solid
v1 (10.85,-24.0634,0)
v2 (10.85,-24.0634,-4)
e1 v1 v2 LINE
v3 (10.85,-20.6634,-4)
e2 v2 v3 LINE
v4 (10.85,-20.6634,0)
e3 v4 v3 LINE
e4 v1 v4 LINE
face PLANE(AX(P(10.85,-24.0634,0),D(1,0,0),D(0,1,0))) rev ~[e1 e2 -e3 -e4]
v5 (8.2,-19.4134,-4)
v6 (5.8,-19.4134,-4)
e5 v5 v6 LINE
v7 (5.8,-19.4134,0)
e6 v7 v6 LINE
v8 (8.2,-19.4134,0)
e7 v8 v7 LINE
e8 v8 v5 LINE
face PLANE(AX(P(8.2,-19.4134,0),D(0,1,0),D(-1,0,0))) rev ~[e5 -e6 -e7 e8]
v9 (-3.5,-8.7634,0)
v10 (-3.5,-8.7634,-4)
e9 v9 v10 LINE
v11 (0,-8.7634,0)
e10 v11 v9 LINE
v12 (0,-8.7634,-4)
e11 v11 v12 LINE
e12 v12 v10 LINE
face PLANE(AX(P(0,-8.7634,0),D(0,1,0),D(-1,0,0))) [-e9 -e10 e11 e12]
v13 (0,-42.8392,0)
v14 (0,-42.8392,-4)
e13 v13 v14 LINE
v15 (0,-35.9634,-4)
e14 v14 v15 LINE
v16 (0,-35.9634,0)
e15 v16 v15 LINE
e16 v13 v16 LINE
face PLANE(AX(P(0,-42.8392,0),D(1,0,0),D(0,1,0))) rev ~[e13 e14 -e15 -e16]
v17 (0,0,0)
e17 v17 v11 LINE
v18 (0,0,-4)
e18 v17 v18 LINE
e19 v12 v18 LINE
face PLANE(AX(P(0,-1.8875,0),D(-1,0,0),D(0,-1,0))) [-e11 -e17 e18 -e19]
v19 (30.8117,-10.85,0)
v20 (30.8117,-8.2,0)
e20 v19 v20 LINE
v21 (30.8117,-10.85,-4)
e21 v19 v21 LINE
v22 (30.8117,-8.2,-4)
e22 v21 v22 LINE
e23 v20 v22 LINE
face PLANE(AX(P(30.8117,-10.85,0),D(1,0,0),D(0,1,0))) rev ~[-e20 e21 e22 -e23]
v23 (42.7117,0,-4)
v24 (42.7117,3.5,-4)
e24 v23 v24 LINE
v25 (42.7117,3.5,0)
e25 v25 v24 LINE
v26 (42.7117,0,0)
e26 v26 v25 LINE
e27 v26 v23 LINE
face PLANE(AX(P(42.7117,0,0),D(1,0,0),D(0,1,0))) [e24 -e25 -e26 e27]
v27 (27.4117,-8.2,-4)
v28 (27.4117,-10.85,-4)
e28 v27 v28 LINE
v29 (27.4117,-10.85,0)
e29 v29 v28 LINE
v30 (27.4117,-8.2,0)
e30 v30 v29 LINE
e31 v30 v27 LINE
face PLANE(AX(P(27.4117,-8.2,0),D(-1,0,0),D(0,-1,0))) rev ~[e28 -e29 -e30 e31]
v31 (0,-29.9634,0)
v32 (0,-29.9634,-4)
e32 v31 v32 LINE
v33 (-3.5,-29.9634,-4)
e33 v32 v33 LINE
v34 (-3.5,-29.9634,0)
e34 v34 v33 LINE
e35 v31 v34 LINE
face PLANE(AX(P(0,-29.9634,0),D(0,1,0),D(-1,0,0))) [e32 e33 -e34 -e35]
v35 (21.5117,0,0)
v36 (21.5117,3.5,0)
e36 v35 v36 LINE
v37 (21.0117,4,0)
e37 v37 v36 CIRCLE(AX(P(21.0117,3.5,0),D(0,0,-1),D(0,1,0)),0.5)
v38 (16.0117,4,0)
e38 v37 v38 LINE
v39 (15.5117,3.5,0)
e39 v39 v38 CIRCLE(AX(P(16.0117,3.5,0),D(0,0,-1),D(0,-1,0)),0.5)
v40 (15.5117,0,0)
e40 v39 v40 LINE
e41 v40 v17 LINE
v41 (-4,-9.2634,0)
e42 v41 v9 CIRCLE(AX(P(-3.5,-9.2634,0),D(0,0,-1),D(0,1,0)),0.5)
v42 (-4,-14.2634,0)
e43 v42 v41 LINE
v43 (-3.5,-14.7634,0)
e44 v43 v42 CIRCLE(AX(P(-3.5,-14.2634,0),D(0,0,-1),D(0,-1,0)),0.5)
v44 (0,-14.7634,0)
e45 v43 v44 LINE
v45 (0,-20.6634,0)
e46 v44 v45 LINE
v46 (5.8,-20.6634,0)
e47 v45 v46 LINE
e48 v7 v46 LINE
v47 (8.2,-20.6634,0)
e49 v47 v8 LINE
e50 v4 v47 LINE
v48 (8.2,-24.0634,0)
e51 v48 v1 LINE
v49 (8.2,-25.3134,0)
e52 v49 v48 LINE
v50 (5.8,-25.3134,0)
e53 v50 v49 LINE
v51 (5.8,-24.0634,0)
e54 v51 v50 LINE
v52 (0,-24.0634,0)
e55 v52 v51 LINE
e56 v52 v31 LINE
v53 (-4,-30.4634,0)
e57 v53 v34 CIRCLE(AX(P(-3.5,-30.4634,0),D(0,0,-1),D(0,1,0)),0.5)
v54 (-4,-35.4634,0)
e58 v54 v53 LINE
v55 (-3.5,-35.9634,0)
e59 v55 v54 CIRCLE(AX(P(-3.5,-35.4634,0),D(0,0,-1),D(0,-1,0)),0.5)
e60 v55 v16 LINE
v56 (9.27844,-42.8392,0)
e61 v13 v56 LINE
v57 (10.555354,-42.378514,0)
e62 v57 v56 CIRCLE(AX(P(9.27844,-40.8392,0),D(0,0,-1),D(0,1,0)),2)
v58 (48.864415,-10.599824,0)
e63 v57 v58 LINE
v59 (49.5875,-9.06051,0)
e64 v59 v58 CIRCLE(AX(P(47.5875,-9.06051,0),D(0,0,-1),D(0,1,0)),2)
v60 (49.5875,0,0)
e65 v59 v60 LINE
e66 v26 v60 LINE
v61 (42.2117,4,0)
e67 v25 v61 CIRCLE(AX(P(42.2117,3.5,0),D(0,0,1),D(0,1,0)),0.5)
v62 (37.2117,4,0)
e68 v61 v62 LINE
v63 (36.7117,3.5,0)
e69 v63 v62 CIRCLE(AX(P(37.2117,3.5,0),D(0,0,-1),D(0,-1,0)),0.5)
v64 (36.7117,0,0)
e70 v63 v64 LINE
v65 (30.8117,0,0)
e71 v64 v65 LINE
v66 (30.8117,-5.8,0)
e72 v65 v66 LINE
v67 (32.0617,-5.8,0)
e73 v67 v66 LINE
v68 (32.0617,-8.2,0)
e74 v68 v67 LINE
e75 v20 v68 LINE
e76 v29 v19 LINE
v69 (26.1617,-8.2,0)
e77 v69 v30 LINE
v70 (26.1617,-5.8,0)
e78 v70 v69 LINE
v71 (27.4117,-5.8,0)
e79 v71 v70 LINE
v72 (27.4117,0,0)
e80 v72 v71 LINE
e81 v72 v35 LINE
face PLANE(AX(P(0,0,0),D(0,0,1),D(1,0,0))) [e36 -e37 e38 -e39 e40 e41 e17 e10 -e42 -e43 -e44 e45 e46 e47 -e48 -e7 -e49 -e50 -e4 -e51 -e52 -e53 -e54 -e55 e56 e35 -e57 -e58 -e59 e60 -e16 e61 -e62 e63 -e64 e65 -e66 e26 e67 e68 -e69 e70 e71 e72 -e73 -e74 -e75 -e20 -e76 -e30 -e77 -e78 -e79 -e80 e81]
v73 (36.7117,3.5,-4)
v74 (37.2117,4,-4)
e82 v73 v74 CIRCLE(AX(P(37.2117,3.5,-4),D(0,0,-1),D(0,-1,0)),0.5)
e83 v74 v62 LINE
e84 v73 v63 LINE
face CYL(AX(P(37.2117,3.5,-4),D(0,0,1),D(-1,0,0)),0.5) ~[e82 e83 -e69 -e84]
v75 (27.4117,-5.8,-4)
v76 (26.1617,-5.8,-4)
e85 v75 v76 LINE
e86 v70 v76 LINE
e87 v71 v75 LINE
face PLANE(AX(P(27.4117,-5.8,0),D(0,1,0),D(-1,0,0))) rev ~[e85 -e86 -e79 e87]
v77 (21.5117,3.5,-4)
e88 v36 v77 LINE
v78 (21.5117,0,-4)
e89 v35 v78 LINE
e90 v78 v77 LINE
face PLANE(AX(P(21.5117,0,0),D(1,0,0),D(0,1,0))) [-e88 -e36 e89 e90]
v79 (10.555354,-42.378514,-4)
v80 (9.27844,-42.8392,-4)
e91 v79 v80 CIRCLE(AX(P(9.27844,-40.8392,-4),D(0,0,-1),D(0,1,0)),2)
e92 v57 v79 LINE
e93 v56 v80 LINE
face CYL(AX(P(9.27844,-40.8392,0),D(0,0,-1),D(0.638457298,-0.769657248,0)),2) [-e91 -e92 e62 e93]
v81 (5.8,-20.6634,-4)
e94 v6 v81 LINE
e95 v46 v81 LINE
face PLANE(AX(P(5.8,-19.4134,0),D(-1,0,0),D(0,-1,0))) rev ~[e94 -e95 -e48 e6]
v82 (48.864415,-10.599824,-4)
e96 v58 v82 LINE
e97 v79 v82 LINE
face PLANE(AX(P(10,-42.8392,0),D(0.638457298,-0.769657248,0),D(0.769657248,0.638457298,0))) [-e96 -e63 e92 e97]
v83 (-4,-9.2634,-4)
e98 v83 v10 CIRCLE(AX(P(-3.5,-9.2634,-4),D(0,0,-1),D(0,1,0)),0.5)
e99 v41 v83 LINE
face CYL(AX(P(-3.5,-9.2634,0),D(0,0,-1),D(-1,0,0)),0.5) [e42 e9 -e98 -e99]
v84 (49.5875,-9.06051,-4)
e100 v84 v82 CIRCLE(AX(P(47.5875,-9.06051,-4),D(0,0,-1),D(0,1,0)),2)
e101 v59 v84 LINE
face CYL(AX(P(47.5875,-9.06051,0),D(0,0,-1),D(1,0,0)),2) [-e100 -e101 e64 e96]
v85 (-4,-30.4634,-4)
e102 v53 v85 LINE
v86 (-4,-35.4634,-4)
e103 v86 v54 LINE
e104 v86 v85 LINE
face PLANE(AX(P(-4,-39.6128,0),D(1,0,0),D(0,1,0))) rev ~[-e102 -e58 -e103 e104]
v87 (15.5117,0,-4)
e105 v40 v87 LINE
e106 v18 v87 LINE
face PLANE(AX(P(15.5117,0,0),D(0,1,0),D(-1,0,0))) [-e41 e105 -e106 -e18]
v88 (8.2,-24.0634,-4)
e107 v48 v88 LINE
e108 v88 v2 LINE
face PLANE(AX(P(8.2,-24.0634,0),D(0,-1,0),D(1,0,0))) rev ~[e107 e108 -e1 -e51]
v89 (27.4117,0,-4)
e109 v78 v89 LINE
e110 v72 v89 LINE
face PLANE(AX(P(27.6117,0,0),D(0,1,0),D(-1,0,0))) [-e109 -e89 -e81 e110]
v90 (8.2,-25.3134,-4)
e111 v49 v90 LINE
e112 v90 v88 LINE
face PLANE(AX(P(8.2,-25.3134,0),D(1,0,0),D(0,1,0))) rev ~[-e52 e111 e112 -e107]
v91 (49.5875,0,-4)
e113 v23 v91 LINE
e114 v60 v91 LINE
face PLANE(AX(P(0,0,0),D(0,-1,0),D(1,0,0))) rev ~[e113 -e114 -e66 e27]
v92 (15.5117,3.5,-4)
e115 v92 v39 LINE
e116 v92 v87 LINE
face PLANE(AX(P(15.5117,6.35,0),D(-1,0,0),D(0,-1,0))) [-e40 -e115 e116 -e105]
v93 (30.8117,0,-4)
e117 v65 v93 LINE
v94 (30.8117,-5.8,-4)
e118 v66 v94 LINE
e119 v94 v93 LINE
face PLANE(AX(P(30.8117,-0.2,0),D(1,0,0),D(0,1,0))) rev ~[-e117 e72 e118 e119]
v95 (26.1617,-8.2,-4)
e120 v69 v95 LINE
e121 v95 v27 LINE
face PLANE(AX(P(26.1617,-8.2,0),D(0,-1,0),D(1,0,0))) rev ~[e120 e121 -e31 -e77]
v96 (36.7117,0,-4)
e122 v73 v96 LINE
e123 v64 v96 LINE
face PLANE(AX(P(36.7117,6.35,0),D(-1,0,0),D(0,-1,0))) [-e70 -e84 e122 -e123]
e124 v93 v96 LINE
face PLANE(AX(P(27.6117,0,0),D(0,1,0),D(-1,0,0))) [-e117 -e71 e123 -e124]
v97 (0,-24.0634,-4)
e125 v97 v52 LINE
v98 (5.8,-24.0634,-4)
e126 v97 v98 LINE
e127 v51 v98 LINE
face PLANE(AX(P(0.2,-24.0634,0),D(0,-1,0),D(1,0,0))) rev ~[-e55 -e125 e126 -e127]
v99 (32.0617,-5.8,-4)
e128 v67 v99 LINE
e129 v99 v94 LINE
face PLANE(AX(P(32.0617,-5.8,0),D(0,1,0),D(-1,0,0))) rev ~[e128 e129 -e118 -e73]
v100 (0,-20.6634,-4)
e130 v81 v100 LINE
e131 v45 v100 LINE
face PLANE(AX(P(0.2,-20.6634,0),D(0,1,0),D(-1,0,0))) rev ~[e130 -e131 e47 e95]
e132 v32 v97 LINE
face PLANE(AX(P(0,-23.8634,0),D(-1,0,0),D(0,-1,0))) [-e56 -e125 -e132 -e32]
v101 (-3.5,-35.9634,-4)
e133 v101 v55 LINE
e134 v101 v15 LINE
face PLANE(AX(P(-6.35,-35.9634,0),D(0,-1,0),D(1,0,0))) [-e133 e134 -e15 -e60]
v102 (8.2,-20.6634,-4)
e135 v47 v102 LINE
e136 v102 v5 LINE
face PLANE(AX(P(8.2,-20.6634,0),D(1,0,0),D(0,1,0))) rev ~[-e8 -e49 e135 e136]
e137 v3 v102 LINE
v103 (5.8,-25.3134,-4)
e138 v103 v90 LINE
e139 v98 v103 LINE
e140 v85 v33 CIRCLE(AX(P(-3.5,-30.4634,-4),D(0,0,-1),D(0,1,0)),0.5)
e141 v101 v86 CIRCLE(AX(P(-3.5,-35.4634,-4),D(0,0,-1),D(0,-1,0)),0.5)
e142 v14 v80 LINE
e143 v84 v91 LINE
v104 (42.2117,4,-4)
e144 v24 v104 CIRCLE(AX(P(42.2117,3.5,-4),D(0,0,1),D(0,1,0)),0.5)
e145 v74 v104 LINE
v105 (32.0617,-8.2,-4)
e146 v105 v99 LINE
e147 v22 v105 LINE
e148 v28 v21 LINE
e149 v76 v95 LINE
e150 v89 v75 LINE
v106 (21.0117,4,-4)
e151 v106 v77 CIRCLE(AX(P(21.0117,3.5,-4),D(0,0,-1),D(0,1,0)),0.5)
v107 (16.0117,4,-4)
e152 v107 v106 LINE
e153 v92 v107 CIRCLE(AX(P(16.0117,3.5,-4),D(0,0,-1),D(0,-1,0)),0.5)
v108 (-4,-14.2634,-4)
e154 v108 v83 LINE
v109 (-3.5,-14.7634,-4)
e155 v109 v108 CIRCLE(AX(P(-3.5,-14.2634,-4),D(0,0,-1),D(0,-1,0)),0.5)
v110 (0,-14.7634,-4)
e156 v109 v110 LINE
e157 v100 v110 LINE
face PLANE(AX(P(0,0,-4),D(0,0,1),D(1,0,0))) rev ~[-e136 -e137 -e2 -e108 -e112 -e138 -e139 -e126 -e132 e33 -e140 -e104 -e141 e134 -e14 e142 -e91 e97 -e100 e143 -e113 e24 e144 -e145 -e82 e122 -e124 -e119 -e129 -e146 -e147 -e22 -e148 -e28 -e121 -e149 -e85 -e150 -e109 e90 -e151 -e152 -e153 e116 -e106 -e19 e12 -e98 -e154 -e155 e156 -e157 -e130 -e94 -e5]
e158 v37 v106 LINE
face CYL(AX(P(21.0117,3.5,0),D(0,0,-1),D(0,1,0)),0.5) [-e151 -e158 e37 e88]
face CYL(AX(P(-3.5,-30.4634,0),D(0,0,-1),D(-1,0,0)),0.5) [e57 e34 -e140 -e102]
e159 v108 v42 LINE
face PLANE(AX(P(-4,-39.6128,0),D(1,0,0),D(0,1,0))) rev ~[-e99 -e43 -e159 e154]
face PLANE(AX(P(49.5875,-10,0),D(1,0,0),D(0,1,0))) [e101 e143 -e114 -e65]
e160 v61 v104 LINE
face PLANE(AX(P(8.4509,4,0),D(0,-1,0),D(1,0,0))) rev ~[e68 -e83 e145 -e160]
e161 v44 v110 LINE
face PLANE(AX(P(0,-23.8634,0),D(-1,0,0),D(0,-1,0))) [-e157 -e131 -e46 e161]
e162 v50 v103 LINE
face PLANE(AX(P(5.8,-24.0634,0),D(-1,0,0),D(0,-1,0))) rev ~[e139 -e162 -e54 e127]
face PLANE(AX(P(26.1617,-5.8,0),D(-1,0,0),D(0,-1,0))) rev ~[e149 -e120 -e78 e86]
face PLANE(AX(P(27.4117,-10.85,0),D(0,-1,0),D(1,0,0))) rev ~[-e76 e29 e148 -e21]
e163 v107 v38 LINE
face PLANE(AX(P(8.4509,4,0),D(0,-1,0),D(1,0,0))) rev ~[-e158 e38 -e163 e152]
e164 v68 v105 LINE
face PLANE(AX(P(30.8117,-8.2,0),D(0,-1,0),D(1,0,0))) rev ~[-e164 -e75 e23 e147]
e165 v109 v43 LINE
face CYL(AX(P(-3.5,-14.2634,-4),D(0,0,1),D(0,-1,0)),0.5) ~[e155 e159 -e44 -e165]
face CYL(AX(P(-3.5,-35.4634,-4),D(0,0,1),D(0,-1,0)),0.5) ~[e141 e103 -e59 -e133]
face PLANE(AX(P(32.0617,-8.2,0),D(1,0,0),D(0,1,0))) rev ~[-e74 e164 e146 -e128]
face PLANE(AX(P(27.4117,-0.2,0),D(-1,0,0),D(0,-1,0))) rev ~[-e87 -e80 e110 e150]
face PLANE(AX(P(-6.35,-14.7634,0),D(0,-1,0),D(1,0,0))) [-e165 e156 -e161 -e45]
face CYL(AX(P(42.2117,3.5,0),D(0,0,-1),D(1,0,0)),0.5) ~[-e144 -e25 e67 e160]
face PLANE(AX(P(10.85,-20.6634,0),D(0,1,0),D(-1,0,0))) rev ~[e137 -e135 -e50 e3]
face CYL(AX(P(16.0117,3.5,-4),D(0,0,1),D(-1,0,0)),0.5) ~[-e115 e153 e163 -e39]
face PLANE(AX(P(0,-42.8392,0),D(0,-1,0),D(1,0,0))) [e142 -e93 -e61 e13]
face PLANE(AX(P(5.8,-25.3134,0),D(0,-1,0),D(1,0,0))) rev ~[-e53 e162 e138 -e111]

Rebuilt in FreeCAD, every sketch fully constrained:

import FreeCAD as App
import Part
import Sketcher
Q = App.Units.Quantity


def edges_at(feature, points):
    """Names of the edges that pass closest to the given points."""
    edges = feature.Shape.Edges
    near = lambda p: min(range(len(edges)), key=lambda i: edges[i].distToShape(Part.Vertex(*p))[0])
    return sorted({f"Edge{near(p) + 1}" for p in points})


def add_polygon(sketch, points):
    """Adds a closed chain of lines whose ends are joined by coincident constraints."""
    first, n = sketch.GeometryCount, len(points)
    for a, b in zip(points, points[1:] + points[:1]):
        sketch.addGeometry(Part.LineSegment(App.Vector(*a, 0), App.Vector(*b, 0)), False)
    for i in range(n):
        sketch.addConstraint(Sketcher.Constraint("Coincident", first + i, 2, first + (i + 1) % n, 1))

doc = App.newDocument("Part")
params = doc.addObject("Spreadsheet::Sheet", "Params")
for row, (alias, value) in enumerate([
    ("sketch1_width", "10 mm"),
    ("pad1_length", "4 mm"),
    ("fillet_radius", "2 mm"),
    ("sketch2_width", "6 mm"),
    ("sketch2_width2", "2 mm"),
    ("sketch2_width3", "3 mm"),
    ("sketch2_width4", "6.1 mm"),
    ("sketch2_width5", "6.35 mm"),
    ("pad2_length", "4 mm"),
    ("sketch3_width", "6 mm"),
    ("sketch3_width2", "2 mm"),
    ("sketch3_width3", "3 mm"),
    ("sketch3_width4", "2.65 mm"),
    ("sketch3_width5", "1.25 mm"),
    ("pocket1_length", "4 mm"),
    ("sketch4_width", "6 mm"),
    ("sketch4_width2", "3.4 mm"),
    ("sketch4_width3", "2.4 mm"),
    ("sketch4_height", "5.8 mm"),
    ("sketch4_width4", "1.25 mm"),
    ("pocket2_length", "25.4 mm"),
    ("pocket3_length", "25.4 mm"),
    ("fillet2_radius", "0.5 mm"),
], start=1):
    params.set(f"A{row}", alias)
    params.set(f"B{row}", "=" + value)
    params.setAlias(f"B{row}", alias)

body = doc.addObject("PartDesign::Body", "Body")

# Sketch on XY plane
sketch1 = doc.addObject("Sketcher::SketchObject", "Sketch")
body.addObject(sketch1)
sketch1.AttachmentSupport = (doc.XY_Plane, [""])
sketch1.MapMode = "FlatFace"
add_polygon(sketch1, [(0, 0), (0, -43), (10, -43), (50, -10), (50, 0)])  # lines 0-4
sketch1.addConstraint(Sketcher.Constraint("Vertical", 0))
sketch1.addConstraint(Sketcher.Constraint("Horizontal", 1))
sketch1.addConstraint(Sketcher.Constraint("Vertical", 3))
sketch1.addConstraint(Sketcher.Constraint("Horizontal", 4))
sketch1.addConstraint(Sketcher.Constraint("Coincident", 4, 2, -1, 1))
sketch1.addConstraint(Sketcher.Constraint("Equal", 1, 3))
sketch1.addConstraint(Sketcher.Constraint("DistanceX", 1, 1, 1, 2, Q("10 mm")))
sketch1.addConstraint(Sketcher.Constraint("DistanceX", 4, 2, 4, 1, Q("49.5875 mm")))
sketch1.addConstraint(Sketcher.Constraint("DistanceY", 0, 2, 0, 1, Q("42.8392 mm")))
sketch1.setExpression("Constraints[11]", "Params.sketch1_width")
pad1 = doc.addObject("PartDesign::Pad", "Pad")
body.addObject(pad1)
pad1.Profile = sketch1
pad1.setExpression("Length", "Params.pad1_length")
pad1.Reversed = True
doc.recompute()

fillet = doc.addObject("PartDesign::Fillet", "Fillet")
body.addObject(fillet)
fillet.Base = (pad1, edges_at(pad1, [(49.587, -10, -2), (10, -42.839, -2)]))
fillet.setExpression("Radius", "Params.fillet_radius")

# Sketch on XY plane
sketch2 = doc.addObject("Sketcher::SketchObject", "Sketch001")
body.addObject(sketch2)
sketch2.AttachmentSupport = (doc.XY_Plane, [""])
sketch2.MapMode = "FlatFace"
add_polygon(sketch2, [(8.6, 0), (0, -1.9), (0, -8.8), (-6.3, -8.8), (-6.3, -14.8), (0, -14.8), (0, -20.9), (6, -20.9), (6, -19.6), (8, -19.6), (8, -20.9), (10.7, -20.9), (10.7, -23.9), (8, -23.9), (8, -25.1), (6, -25.1), (6, -23.9), (0, -23.9), (0, -30), (-6.3, -30), (-6.3, -36), (0, -36), (0, -42.8), (49.6, 0), (42.7, 0), (42.7, 6.3), (36.7, 6.3), (36.7, 0), (30.6, 0), (30.6, -6), (31.9, -6), (31.9, -8), (30.6, -8), (30.6, -10.7), (27.6, -10.7), (27.6, -8), (26.4, -8), (26.4, -6), (27.6, -6), (27.6, 0), (21.5, 0), (21.5, 6.3), (15.5, 6.3), (15.5, 0)])  # lines 0-43
sketch2.addConstraint(Sketcher.Constraint("Vertical", 1))
sketch2.addConstraint(Sketcher.Constraint("Horizontal", 2))
sketch2.addConstraint(Sketcher.Constraint("Vertical", 3))
sketch2.addConstraint(Sketcher.Constraint("Horizontal", 4))
sketch2.addConstraint(Sketcher.Constraint("Vertical", 5))
sketch2.addConstraint(Sketcher.Constraint("Horizontal", 6))
sketch2.addConstraint(Sketcher.Constraint("Vertical", 7))
sketch2.addConstraint(Sketcher.Constraint("Horizontal", 8))
sketch2.addConstraint(Sketcher.Constraint("Vertical", 9))
sketch2.addConstraint(Sketcher.Constraint("Horizontal", 10))
sketch2.addConstraint(Sketcher.Constraint("Vertical", 11))
sketch2.addConstraint(Sketcher.Constraint("Horizontal", 12))
sketch2.addConstraint(Sketcher.Constraint("Vertical", 13))
sketch2.addConstraint(Sketcher.Constraint("Horizontal", 14))
sketch2.addConstraint(Sketcher.Constraint("Vertical", 15))
sketch2.addConstraint(Sketcher.Constraint("Horizontal", 16))
sketch2.addConstraint(Sketcher.Constraint("Vertical", 17))
sketch2.addConstraint(Sketcher.Constraint("Horizontal", 18))
sketch2.addConstraint(Sketcher.Constraint("Vertical", 19))
sketch2.addConstraint(Sketcher.Constraint("Horizontal", 20))
sketch2.addConstraint(Sketcher.Constraint("Vertical", 21))
sketch2.addConstraint(Sketcher.Constraint("Horizontal", 23))
sketch2.addConstraint(Sketcher.Constraint("Vertical", 24))
sketch2.addConstraint(Sketcher.Constraint("Horizontal", 25))
sketch2.addConstraint(Sketcher.Constraint("Vertical", 26))
sketch2.addConstraint(Sketcher.Constraint("Horizontal", 27))
sketch2.addConstraint(Sketcher.Constraint("Vertical", 28))
sketch2.addConstraint(Sketcher.Constraint("Horizontal", 29))
sketch2.addConstraint(Sketcher.Constraint("Vertical", 30))
sketch2.addConstraint(Sketcher.Constraint("Horizontal", 31))
sketch2.addConstraint(Sketcher.Constraint("Vertical", 32))
sketch2.addConstraint(Sketcher.Constraint("Horizontal", 33))
sketch2.addConstraint(Sketcher.Constraint("Vertical", 34))
sketch2.addConstraint(Sketcher.Constraint("Horizontal", 35))
sketch2.addConstraint(Sketcher.Constraint("Vertical", 36))
sketch2.addConstraint(Sketcher.Constraint("Horizontal", 37))
sketch2.addConstraint(Sketcher.Constraint("Vertical", 38))
sketch2.addConstraint(Sketcher.Constraint("Horizontal", 39))
sketch2.addConstraint(Sketcher.Constraint("Vertical", 40))
sketch2.addConstraint(Sketcher.Constraint("Horizontal", 41))
sketch2.addConstraint(Sketcher.Constraint("Vertical", 42))
sketch2.addConstraint(Sketcher.Constraint("Horizontal", 43))
sketch2.addConstraint(Sketcher.Constraint("PointOnObject", 0, 2, -2))
sketch2.addConstraint(Sketcher.Constraint("PointOnObject", 4, 2, -2))
sketch2.addConstraint(Sketcher.Constraint("PointOnObject", 16, 2, -2))
sketch2.addConstraint(Sketcher.Constraint("PointOnObject", 20, 2, -2))
sketch2.addConstraint(Sketcher.Constraint("PointOnObject", 22, 2, -1))
sketch2.addConstraint(Sketcher.Constraint("PointOnObject", 26, 2, -1))
sketch2.addConstraint(Sketcher.Constraint("PointOnObject", 38, 2, -1))
sketch2.addConstraint(Sketcher.Constraint("PointOnObject", 42, 2, -1))
sketch2.addConstraint(Sketcher.Constraint("Horizontal", 6, 2, 9, 2))
sketch2.addConstraint(Sketcher.Constraint("Horizontal", 12, 2, 15, 2))
sketch2.addConstraint(Sketcher.Constraint("Horizontal", 31, 2, 34, 2))
sketch2.addConstraint(Sketcher.Constraint("Horizontal", 29, 2, 36, 2))
sketch2.addConstraint(Sketcher.Constraint("Horizontal", 25, 2, 40, 2))
sketch2.addConstraint(Sketcher.Constraint("Vertical", 9, 2, 12, 2))
sketch2.addConstraint(Sketcher.Constraint("Vertical", 7, 2, 14, 2))
sketch2.addConstraint(Sketcher.Constraint("Vertical", 3, 2, 18, 2))
sketch2.addConstraint(Sketcher.Constraint("Vertical", 28, 2, 31, 2))
sketch2.addConstraint(Sketcher.Constraint("Vertical", 34, 2, 37, 2))
sketch2.addConstraint(Sketcher.Constraint("Equal", 16, 25))
sketch2.addConstraint(Sketcher.Constraint("Equal", 31, 35))
sketch2.addConstraint(Sketcher.Constraint("Equal", 27, 39))
sketch2.addConstraint(Sketcher.Constraint("Equal", 25, 41))
sketch2.addConstraint(Sketcher.Constraint("Equal", 23, 43))
sketch2.addConstraint(Sketcher.Constraint("Equal", 43, 1))
sketch2.addConstraint(Sketcher.Constraint("Equal", 41, 3))
sketch2.addConstraint(Sketcher.Constraint("Equal", 39, 5))
sketch2.addConstraint(Sketcher.Constraint("Equal", 37, 7))
sketch2.addConstraint(Sketcher.Constraint("Equal", 33, 11))
sketch2.addConstraint(Sketcher.Constraint("Equal", 9, 13))
sketch2.addConstraint(Sketcher.Constraint("Equal", 5, 17))
sketch2.addConstraint(Sketcher.Constraint("Equal", 3, 19))
sketch2.addConstraint(Sketcher.Constraint("Equal", 1, 21))
sketch2.addConstraint(Sketcher.Constraint("Equal", 20, 24))
sketch2.addConstraint(Sketcher.Constraint("Equal", 19, 28))
sketch2.addConstraint(Sketcher.Constraint("Equal", 14, 30))
sketch2.addConstraint(Sketcher.Constraint("Equal", 12, 32))
sketch2.addConstraint(Sketcher.Constraint("DistanceX", 6, 1, 6, 2, Q("6 mm")))
sketch2.addConstraint(Sketcher.Constraint("DistanceX", 8, 1, 8, 2, Q("2 mm")))
sketch2.addConstraint(Sketcher.Constraint("DistanceX", 33, 2, 33, 1, Q("3 mm")))
sketch2.addConstraint(Sketcher.Constraint("DistanceX", 27, 2, 27, 1, Q("6.1 mm")))
sketch2.addConstraint(Sketcher.Constraint("DistanceX", 2, 2, 2, 1, Q("6.35 mm")))
sketch2.addConstraint(Sketcher.Constraint("DistanceX", 10, 1, 10, 2, Q("2.65 mm")))
sketch2.addConstraint(Sketcher.Constraint("DistanceX", 29, 1, 29, 2, Q("1.25 mm")))
sketch2.addConstraint(Sketcher.Constraint("Angle", 0, Q("-167.671 deg")))
sketch2.addConstraint(Sketcher.Constraint("DistanceY", 1, 2, 1, 1, Q("6.876 mm")))
sketch2.addConstraint(Sketcher.Constraint("DistanceX", -1, 1, 43, 2, Q("8.636 mm")))
sketch2.setExpression("Constraints[122]", "Params.sketch2_width")
sketch2.setExpression("Constraints[123]", "Params.sketch2_width2")
sketch2.setExpression("Constraints[124]", "Params.sketch2_width3")
sketch2.setExpression("Constraints[125]", "Params.sketch2_width4")
sketch2.setExpression("Constraints[126]", "Params.sketch2_width5")
pad2 = doc.addObject("PartDesign::Pad", "Pad001")
body.addObject(pad2)
pad2.Profile = sketch2
pad2.setExpression("Length", "Params.pad2_length")
pad2.Reversed = True

# Sketch on XY plane
sketch3 = doc.addObject("Sketcher::SketchObject", "Sketch002")
body.addObject(sketch3)
sketch3.AttachmentSupport = (doc.XY_Plane, [""])
sketch3.MapMode = "FlatFace"
add_polygon(sketch3, [(6, -20.9), (0, -20.9), (0, -23.9), (6, -23.9), (6, -25.1), (8, -25.1), (8, -23.9), (10.7, -23.9), (10.7, -20.9), (8, -20.9), (8, -19.6), (6, -19.6)])  # lines 0-11
add_polygon(sketch3, [(30.6, 0), (27.6, 0), (27.6, -6), (26.4, -6), (26.4, -8), (27.6, -8), (27.6, -10.7), (30.6, -10.7), (30.6, -8), (31.9, -8), (31.9, -6), (30.6, -6)])  # lines 12-23
sketch3.addConstraint(Sketcher.Constraint("Horizontal", 0))
sketch3.addConstraint(Sketcher.Constraint("Vertical", 1))
sketch3.addConstraint(Sketcher.Constraint("Horizontal", 2))
sketch3.addConstraint(Sketcher.Constraint("Vertical", 3))
sketch3.addConstraint(Sketcher.Constraint("Horizontal", 4))
sketch3.addConstraint(Sketcher.Constraint("Vertical", 5))
sketch3.addConstraint(Sketcher.Constraint("Horizontal", 6))
sketch3.addConstraint(Sketcher.Constraint("Vertical", 7))
sketch3.addConstraint(Sketcher.Constraint("Horizontal", 8))
sketch3.addConstraint(Sketcher.Constraint("Vertical", 9))
sketch3.addConstraint(Sketcher.Constraint("Horizontal", 10))
sketch3.addConstraint(Sketcher.Constraint("Vertical", 11))
sketch3.addConstraint(Sketcher.Constraint("Horizontal", 12))
sketch3.addConstraint(Sketcher.Constraint("Vertical", 13))
sketch3.addConstraint(Sketcher.Constraint("Horizontal", 14))
sketch3.addConstraint(Sketcher.Constraint("Vertical", 15))
sketch3.addConstraint(Sketcher.Constraint("Horizontal", 16))
sketch3.addConstraint(Sketcher.Constraint("Vertical", 17))
sketch3.addConstraint(Sketcher.Constraint("Horizontal", 18))
sketch3.addConstraint(Sketcher.Constraint("Vertical", 19))
sketch3.addConstraint(Sketcher.Constraint("Horizontal", 20))
sketch3.addConstraint(Sketcher.Constraint("Vertical", 21))
sketch3.addConstraint(Sketcher.Constraint("Horizontal", 22))
sketch3.addConstraint(Sketcher.Constraint("Vertical", 23))
sketch3.addConstraint(Sketcher.Constraint("PointOnObject", 0, 2, -2))
sketch3.addConstraint(Sketcher.Constraint("PointOnObject", 12, 2, -1))
sketch3.addConstraint(Sketcher.Constraint("Horizontal", 2, 2, 5, 2))
sketch3.addConstraint(Sketcher.Constraint("Horizontal", 0, 2, 7, 2))
sketch3.addConstraint(Sketcher.Constraint("Horizontal", 16, 2, 19, 2))
sketch3.addConstraint(Sketcher.Constraint("Horizontal", 14, 2, 21, 2))
sketch3.addConstraint(Sketcher.Constraint("Vertical", 5, 2, 8, 2))
sketch3.addConstraint(Sketcher.Constraint("Vertical", 3, 2, 10, 2))
sketch3.addConstraint(Sketcher.Constraint("Vertical", 13, 2, 16, 2))
sketch3.addConstraint(Sketcher.Constraint("Vertical", 19, 2, 22, 2))
sketch3.addConstraint(Sketcher.Constraint("Equal", 16, 20))
sketch3.addConstraint(Sketcher.Constraint("Equal", 18, 1))
sketch3.addConstraint(Sketcher.Constraint("Equal", 22, 3))
sketch3.addConstraint(Sketcher.Constraint("Equal", 5, 9))
sketch3.addConstraint(Sketcher.Constraint("Equal", 2, 13))
sketch3.addConstraint(Sketcher.Constraint("Equal", 10, 15))
sketch3.addConstraint(Sketcher.Constraint("Equal", 8, 17))
sketch3.addConstraint(Sketcher.Constraint("DistanceX", 0, 2, 0, 1, Q("6 mm")))
sketch3.addConstraint(Sketcher.Constraint("DistanceX", 4, 1, 4, 2, Q("2 mm")))
sketch3.addConstraint(Sketcher.Constraint("DistanceX", 12, 2, 12, 1, Q("3 mm")))
sketch3.addConstraint(Sketcher.Constraint("DistanceX", 6, 1, 6, 2, Q("2.65 mm")))
sketch3.addConstraint(Sketcher.Constraint("DistanceX", 14, 2, 14, 1, Q("1.25 mm")))
sketch3.addConstraint(Sketcher.Constraint("DistanceY", 0, 2, -1, 1, Q("20.8634 mm")))
sketch3.addConstraint(Sketcher.Constraint("DistanceX", -1, 1, 12, 2, Q("27.6117 mm")))
sketch3.setExpression("Constraints[65]", "Params.sketch3_width")
sketch3.setExpression("Constraints[66]", "Params.sketch3_width2")
sketch3.setExpression("Constraints[67]", "Params.sketch3_width3")
sketch3.setExpression("Constraints[68]", "Params.sketch3_width4")
sketch3.setExpression("Constraints[69]", "Params.sketch3_width5")
pocket1 = doc.addObject("PartDesign::Pocket", "Pocket")
body.addObject(pocket1)
pocket1.Profile = sketch3
pocket1.setExpression("Length", "Params.pocket1_length")

# Sketch on XY plane
sketch4 = doc.addObject("Sketcher::SketchObject", "Sketch003")
body.addObject(sketch4)
sketch4.AttachmentSupport = (doc.XY_Plane, [""])
sketch4.MapMode = "FlatFace"
add_polygon(sketch4, [(30.8, 0), (27.4, 0), (27.4, -5.8), (26.2, -5.8), (26.2, -8.2), (27.4, -8.2), (27.4, -10.8), (30.8, -10.8), (30.8, -8.2), (32.1, -8.2), (32.1, -5.8), (30.8, -5.8)])  # lines 0-11
add_polygon(sketch4, [(-0.2, -20.7), (-0.2, -24.1), (5.8, -24.1), (5.8, -25.3), (8.2, -25.3), (8.2, -24.1), (10.8, -24.1), (10.8, -20.7), (8.2, -20.7), (8.2, -19.4), (5.8, -19.4), (5.8, -20.7)])  # lines 12-23
sketch4.addConstraint(Sketcher.Constraint("Horizontal", 0))
sketch4.addConstraint(Sketcher.Constraint("Vertical", 1))
sketch4.addConstraint(Sketcher.Constraint("Horizontal", 2))
sketch4.addConstraint(Sketcher.Constraint("Vertical", 3))
sketch4.addConstraint(Sketcher.Constraint("Horizontal", 4))
sketch4.addConstraint(Sketcher.Constraint("Vertical", 5))
sketch4.addConstraint(Sketcher.Constraint("Horizontal", 6))
sketch4.addConstraint(Sketcher.Constraint("Vertical", 7))
sketch4.addConstraint(Sketcher.Constraint("Horizontal", 8))
sketch4.addConstraint(Sketcher.Constraint("Vertical", 9))
sketch4.addConstraint(Sketcher.Constraint("Horizontal", 10))
sketch4.addConstraint(Sketcher.Constraint("Vertical", 11))
sketch4.addConstraint(Sketcher.Constraint("Vertical", 12))
sketch4.addConstraint(Sketcher.Constraint("Horizontal", 13))
sketch4.addConstraint(Sketcher.Constraint("Vertical", 14))
sketch4.addConstraint(Sketcher.Constraint("Horizontal", 15))
sketch4.addConstraint(Sketcher.Constraint("Vertical", 16))
sketch4.addConstraint(Sketcher.Constraint("Horizontal", 17))
sketch4.addConstraint(Sketcher.Constraint("Vertical", 18))
sketch4.addConstraint(Sketcher.Constraint("Horizontal", 19))
sketch4.addConstraint(Sketcher.Constraint("Vertical", 20))
sketch4.addConstraint(Sketcher.Constraint("Horizontal", 21))
sketch4.addConstraint(Sketcher.Constraint("Vertical", 22))
sketch4.addConstraint(Sketcher.Constraint("Horizontal", 23))
sketch4.addConstraint(Sketcher.Constraint("PointOnObject", 0, 2, -1))
sketch4.addConstraint(Sketcher.Constraint("Horizontal", 4, 2, 7, 2))
sketch4.addConstraint(Sketcher.Constraint("Horizontal", 2, 2, 9, 2))
sketch4.addConstraint(Sketcher.Constraint("Horizontal", 13, 2, 16, 2))
sketch4.addConstraint(Sketcher.Constraint("Horizontal", 19, 2, 22, 2))
sketch4.addConstraint(Sketcher.Constraint("Vertical", 1, 2, 4, 2))
sketch4.addConstraint(Sketcher.Constraint("Vertical", 7, 2, 10, 2))
sketch4.addConstraint(Sketcher.Constraint("Vertical", 16, 2, 19, 2))
sketch4.addConstraint(Sketcher.Constraint("Vertical", 14, 2, 21, 2))
sketch4.addConstraint(Sketcher.Constraint("Equal", 4, 8))
sketch4.addConstraint(Sketcher.Constraint("Equal", 21, 3))
sketch4.addConstraint(Sketcher.Constraint("Equal", 19, 5))
sketch4.addConstraint(Sketcher.Constraint("Equal", 6, 12))
sketch4.addConstraint(Sketcher.Constraint("Equal", 10, 14))
sketch4.addConstraint(Sketcher.Constraint("Equal", 16, 20))
sketch4.addConstraint(Sketcher.Constraint("DistanceX", 12, 2, -1, 1, Q("0.2 mm")))
sketch4.addConstraint(Sketcher.Constraint("DistanceX", 13, 1, 13, 2, Q("6 mm")))
sketch4.addConstraint(Sketcher.Constraint("DistanceX", 0, 2, 0, 1, Q("3.4 mm")))
sketch4.addConstraint(Sketcher.Constraint("DistanceX", 15, 1, 15, 2, Q("2.4 mm")))
sketch4.addConstraint(Sketcher.Constraint("DistanceY", 1, 2, 1, 1, Q("5.8 mm")))
sketch4.addConstraint(Sketcher.Constraint("DistanceX", 2, 2, 2, 1, Q("1.25 mm")))
sketch4.addConstraint(Sketcher.Constraint("DistanceX", 17, 1, 17, 2, Q("2.65 mm")))
sketch4.addConstraint(Sketcher.Constraint("DistanceX", -1, 1, 0, 2, Q("27.4117 mm")))
sketch4.addConstraint(Sketcher.Constraint("DistanceY", 12, 2, -1, 1, Q("24.0634 mm")))
sketch4.setExpression("Constraints[64]", "Params.sketch4_width")
sketch4.setExpression("Constraints[65]", "Params.sketch4_width2")
sketch4.setExpression("Constraints[66]", "Params.sketch4_width3")
sketch4.setExpression("Constraints[67]", "Params.sketch4_height")
sketch4.setExpression("Constraints[68]", "Params.sketch4_width4")
pocket2 = doc.addObject("PartDesign::Pocket", "Pocket001")
body.addObject(pocket2)
pocket2.Profile = sketch4
pocket2.setExpression("Length", "Params.pocket2_length")

# Sketch on XY plane
sketch5 = doc.addObject("Sketcher::SketchObject", "Sketch004")
body.addObject(sketch5)
sketch5.AttachmentSupport = (doc.XY_Plane, [""])
sketch5.MapMode = "FlatFace"
add_polygon(sketch5, [(8, 4), (61, 4), (61, 23), (8, 23)])  # lines 0-3
add_polygon(sketch5, [(-14, -40), (-4, -40), (-4, 2), (-14, 2)])  # lines 4-7
sketch5.addConstraint(Sketcher.Constraint("Horizontal", 0))
sketch5.addConstraint(Sketcher.Constraint("Vertical", 1))
sketch5.addConstraint(Sketcher.Constraint("Horizontal", 2))
sketch5.addConstraint(Sketcher.Constraint("Vertical", 3))
sketch5.addConstraint(Sketcher.Constraint("Horizontal", 4))
sketch5.addConstraint(Sketcher.Constraint("Vertical", 5))
sketch5.addConstraint(Sketcher.Constraint("Horizontal", 6))
sketch5.addConstraint(Sketcher.Constraint("Vertical", 7))
sketch5.addConstraint(Sketcher.Constraint("DistanceY", -1, 1, 0, 2, Q("4 mm")))
sketch5.addConstraint(Sketcher.Constraint("DistanceX", 4, 2, -1, 1, Q("4 mm")))
sketch5.addConstraint(Sketcher.Constraint("DistanceY", -1, 1, 5, 2, Q("2 mm")))
sketch5.addConstraint(Sketcher.Constraint("DistanceY", 1, 1, 1, 2, Q("18.986 mm")))
sketch5.addConstraint(Sketcher.Constraint("DistanceX", 0, 1, 0, 2, Q("52.9767 mm")))
sketch5.addConstraint(Sketcher.Constraint("DistanceX", 4, 1, 4, 2, Q("10.2218 mm")))
sketch5.addConstraint(Sketcher.Constraint("DistanceY", 5, 1, 5, 2, Q("41.6128 mm")))
sketch5.addConstraint(Sketcher.Constraint("DistanceX", -1, 1, 2, 2, Q("8.451 mm")))
pocket3 = doc.addObject("PartDesign::Pocket", "Pocket002")
body.addObject(pocket3)
pocket3.Profile = sketch5
pocket3.setExpression("Length", "Params.pocket3_length")
doc.recompute()

fillet2 = doc.addObject("PartDesign::Fillet", "Fillet001")
body.addObject(fillet2)
fillet2.Base = (pocket3, edges_at(pocket3, [
    (42.712, 4, -2),
    (36.712, 4, -2),
    (21.512, 4, -2),
    (15.512, 4, -2),
    (-4, -8.763, -2),
    (-4, -14.763, -2),
    (-4, -29.963, -2),
    (-4, -35.963, -2),
]))
fillet2.setExpression("Radius", "Params.fillet2_radius")

doc.recompute()
